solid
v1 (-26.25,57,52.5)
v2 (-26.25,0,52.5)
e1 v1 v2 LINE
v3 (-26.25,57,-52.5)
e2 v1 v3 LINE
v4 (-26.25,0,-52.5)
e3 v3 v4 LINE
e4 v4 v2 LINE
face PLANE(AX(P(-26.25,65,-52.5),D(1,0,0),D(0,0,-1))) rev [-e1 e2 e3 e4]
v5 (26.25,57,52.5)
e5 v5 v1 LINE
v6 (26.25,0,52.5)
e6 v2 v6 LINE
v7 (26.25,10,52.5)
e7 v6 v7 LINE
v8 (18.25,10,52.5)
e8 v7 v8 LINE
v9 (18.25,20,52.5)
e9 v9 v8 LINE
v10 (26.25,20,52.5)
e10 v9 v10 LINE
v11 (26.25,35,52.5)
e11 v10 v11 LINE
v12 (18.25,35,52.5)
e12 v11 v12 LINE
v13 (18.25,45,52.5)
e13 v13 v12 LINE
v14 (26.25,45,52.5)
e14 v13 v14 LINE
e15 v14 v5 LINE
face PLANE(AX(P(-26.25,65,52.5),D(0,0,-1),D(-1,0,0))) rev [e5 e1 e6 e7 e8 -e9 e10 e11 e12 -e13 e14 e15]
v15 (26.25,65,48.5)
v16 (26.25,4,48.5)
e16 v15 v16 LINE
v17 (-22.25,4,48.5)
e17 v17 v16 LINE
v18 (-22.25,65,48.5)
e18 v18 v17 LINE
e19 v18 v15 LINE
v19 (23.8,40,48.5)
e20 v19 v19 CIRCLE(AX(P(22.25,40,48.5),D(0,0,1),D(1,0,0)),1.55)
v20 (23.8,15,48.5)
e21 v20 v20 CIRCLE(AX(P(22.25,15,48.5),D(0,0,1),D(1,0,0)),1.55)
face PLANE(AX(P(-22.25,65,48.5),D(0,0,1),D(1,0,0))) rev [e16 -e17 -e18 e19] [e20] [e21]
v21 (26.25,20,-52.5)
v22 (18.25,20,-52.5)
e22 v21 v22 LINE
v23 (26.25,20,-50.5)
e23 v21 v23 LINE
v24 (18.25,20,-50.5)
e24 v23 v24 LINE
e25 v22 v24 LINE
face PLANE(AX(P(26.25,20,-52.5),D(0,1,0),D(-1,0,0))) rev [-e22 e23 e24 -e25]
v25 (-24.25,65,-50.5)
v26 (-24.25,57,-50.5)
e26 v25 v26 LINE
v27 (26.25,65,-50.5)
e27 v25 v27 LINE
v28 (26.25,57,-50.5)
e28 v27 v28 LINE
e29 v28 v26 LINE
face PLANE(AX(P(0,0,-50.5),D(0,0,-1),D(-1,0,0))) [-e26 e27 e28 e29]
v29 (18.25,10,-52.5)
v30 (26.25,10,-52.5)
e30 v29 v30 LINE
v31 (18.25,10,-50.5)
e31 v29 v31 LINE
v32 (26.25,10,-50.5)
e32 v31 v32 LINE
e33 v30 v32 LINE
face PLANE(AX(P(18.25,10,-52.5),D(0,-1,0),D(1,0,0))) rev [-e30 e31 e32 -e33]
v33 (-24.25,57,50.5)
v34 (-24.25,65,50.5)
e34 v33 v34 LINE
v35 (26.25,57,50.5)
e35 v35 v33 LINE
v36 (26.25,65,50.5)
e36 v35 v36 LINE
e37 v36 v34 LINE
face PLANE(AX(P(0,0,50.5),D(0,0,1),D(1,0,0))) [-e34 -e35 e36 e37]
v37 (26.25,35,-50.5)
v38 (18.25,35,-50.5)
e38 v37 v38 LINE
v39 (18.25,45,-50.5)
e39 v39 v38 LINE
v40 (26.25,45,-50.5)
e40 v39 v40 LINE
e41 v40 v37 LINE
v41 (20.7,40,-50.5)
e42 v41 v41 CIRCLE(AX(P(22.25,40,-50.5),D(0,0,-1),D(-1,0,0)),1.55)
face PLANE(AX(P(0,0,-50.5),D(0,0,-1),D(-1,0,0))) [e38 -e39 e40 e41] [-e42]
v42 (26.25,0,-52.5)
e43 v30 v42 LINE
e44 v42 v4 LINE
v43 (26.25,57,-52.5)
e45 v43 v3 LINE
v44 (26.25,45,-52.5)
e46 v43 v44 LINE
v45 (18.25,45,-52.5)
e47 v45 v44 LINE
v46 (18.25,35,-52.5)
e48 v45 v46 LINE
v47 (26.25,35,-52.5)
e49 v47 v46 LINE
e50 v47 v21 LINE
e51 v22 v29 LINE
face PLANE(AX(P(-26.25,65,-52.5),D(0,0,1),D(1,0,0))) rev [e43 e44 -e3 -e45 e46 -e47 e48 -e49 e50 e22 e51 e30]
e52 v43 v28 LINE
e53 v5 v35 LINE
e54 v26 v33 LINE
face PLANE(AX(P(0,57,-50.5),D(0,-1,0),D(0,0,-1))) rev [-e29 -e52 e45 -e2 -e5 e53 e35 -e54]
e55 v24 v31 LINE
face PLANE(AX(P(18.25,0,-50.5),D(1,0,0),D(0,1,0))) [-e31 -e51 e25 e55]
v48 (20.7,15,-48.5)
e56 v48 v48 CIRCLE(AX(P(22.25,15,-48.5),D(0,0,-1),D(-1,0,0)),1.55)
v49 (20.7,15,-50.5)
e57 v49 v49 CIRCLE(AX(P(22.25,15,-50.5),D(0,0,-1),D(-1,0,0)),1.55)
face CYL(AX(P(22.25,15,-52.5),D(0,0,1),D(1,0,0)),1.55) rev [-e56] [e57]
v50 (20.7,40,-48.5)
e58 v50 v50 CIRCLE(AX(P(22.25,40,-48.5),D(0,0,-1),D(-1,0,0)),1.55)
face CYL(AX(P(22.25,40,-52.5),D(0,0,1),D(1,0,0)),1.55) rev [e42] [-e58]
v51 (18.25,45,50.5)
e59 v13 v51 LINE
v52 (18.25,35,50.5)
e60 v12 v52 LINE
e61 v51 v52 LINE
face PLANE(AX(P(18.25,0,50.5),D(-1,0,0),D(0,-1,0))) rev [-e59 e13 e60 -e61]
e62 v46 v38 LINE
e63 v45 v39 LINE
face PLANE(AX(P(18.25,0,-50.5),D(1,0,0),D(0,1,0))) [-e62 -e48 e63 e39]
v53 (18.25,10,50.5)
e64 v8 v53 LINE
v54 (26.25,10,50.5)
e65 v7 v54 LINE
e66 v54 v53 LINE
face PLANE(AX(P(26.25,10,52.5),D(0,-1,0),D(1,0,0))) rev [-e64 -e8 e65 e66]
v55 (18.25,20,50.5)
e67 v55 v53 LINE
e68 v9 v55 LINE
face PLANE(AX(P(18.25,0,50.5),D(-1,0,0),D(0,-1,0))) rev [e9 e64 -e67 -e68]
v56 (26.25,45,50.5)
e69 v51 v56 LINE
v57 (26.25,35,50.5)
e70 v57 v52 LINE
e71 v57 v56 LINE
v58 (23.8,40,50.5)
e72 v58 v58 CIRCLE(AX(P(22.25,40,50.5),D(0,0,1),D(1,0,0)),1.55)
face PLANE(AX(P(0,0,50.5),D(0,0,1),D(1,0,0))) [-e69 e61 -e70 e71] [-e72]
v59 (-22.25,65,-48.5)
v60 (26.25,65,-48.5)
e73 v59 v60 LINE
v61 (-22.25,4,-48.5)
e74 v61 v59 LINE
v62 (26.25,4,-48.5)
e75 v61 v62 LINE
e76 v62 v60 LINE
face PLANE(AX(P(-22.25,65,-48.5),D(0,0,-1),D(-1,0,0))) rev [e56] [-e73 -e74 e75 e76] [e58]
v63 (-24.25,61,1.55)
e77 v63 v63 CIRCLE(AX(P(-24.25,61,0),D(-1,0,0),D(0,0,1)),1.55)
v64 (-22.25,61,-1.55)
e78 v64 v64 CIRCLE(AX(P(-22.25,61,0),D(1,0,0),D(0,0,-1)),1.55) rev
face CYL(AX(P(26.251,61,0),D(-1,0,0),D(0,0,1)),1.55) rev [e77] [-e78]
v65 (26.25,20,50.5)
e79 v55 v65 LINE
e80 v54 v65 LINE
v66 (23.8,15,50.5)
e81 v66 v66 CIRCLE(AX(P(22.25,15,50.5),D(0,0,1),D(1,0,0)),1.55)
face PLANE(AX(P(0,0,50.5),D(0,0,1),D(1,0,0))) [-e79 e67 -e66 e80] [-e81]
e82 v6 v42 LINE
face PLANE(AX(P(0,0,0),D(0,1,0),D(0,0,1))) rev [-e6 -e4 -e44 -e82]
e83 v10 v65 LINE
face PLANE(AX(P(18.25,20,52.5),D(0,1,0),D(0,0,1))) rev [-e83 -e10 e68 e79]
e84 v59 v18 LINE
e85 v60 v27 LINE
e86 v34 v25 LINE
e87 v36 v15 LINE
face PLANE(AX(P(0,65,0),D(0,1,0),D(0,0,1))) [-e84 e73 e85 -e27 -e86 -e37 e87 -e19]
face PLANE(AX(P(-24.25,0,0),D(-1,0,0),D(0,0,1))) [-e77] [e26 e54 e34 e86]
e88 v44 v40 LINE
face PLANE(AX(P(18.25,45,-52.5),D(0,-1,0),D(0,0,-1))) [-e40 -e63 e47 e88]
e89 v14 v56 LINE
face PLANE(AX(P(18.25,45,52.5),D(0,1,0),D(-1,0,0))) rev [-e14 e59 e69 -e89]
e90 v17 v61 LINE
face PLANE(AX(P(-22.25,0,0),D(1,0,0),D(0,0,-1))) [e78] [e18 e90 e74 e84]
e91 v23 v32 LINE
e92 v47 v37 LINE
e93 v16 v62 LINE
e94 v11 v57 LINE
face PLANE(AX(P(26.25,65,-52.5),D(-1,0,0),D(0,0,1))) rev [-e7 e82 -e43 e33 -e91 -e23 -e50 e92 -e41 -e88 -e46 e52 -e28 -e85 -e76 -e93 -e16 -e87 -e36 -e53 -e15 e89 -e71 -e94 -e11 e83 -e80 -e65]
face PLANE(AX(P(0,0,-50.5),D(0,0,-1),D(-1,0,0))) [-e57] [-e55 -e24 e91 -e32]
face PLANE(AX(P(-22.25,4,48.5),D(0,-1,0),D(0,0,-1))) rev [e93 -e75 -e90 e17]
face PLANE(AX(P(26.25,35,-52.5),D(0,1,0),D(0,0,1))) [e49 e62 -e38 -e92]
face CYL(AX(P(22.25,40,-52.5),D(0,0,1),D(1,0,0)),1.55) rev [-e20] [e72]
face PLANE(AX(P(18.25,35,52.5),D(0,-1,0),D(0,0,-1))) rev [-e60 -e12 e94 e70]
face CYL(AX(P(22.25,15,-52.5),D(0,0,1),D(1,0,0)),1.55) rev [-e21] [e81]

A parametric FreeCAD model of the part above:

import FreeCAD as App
import Part
import Sketcher
Q = App.Units.Quantity

doc = App.newDocument("Part")
params = doc.addObject("Spreadsheet::Sheet", "Params")
for row, (alias, value) in enumerate([
    ("sketch1_height", "105 mm"),
    ("sketch1_width", "52.5 mm"),
    ("pad1_length", "65 mm"),
    ("sketch2_width", "61 mm"),
    ("sketch2_height", "97 mm"),
    ("pocket1_length", "48.5 mm"),
    ("sketch3_width", "8 mm"),
    ("sketch3_height", "57 mm"),
    ("sketch3_width2", "44.5 mm"),
    ("pocket2_length", "2 mm"),
    ("sketch4_width", "8 mm"),
    ("sketch4_height", "57 mm"),
    ("sketch4_width2", "52.5 mm"),
    ("pocket3_length", "2 mm"),
    ("sketch5_width", "8 mm"),
    ("sketch5_height", "101 mm"),
    ("pocket4_length", "2 mm"),
    ("sketch6_diameter", "3.1 mm"),
    ("sketch7_diameter", "3.1 mm"),
    ("sketch8_width", "8 mm"),
    ("sketch8_height", "12 mm"),
    ("sketch8_height2", "10 mm"),
    ("sketch8_height3", "15 mm"),
    ("pad2_length", "2 mm"),
    ("sketch9_width", "8 mm"),
    ("sketch9_height", "12 mm"),
    ("sketch9_height2", "15 mm"),
    ("sketch9_height3", "10 mm"),
    ("pad3_length", "2 mm"),
], start=1):
    params.set(f"A{row}", alias)
    params.set(f"B{row}", "=" + value)
    params.setAlias(f"B{row}", alias)

body = doc.addObject("PartDesign::Body", "Body")

# Sketch on XZ plane
sketch1 = body.newObject("Sketcher::SketchObject", "Sketch")
sketch1.AttachmentSupport = (doc.getObject("XZ_Plane"), [""])
sketch1.MapMode = "FlatFace"
sketch1.addGeometry([
    Part.LineSegment(App.Vector(-26, -52, 0), App.Vector(-26, 52, 0)),
    Part.LineSegment(App.Vector(-26, 52, 0), App.Vector(26, 52, 0)),
    Part.LineSegment(App.Vector(26, 52, 0), App.Vector(26, -52, 0)),
    Part.LineSegment(App.Vector(26, -52, 0), App.Vector(-26, -52, 0)),
], False)
sketch1.addConstraint([
    Sketcher.Constraint("Coincident", 0, 2, 1, 1),
    Sketcher.Constraint("Coincident", 1, 2, 2, 1),
    Sketcher.Constraint("Coincident", 2, 2, 3, 1),
    Sketcher.Constraint("Coincident", 3, 2, 0, 1),
    Sketcher.Constraint("Vertical", 0),
    Sketcher.Constraint("Horizontal", 1),
    Sketcher.Constraint("Vertical", 2),
    Sketcher.Constraint("Horizontal", 3),
    Sketcher.Constraint("Symmetric", 0, 2, 2, 2, -1, 1),
    Sketcher.Constraint("DistanceY", 0, 1, 0, 2, Q("105 mm")),
    Sketcher.Constraint("DistanceX", 1, 1, 1, 2, Q("52.5 mm")),
])
sketch1.setExpression("Constraints[9]", "Params.sketch1_height")
sketch1.setExpression("Constraints[10]", "Params.sketch1_width")
pad1 = body.newObject("PartDesign::Pad", "Pad")
pad1.Profile = sketch1
pad1.setExpression("Length", "Params.pad1_length")
pad1.Reversed = True

# Sketch on YZ plane
sketch2 = body.newObject("Sketcher::SketchObject", "Sketch001")
sketch2.AttachmentSupport = (doc.getObject("YZ_Plane"), [""])
sketch2.MapMode = "FlatFace"
sketch2.AttachmentOffset = App.Placement(App.Vector(0, 0, 26.25), App.Rotation())
sketch2.addGeometry([
    Part.LineSegment(App.Vector(65, 48, 0), App.Vector(4, 48, 0)),
    Part.LineSegment(App.Vector(4, 48, 0), App.Vector(4, -48, 0)),
    Part.LineSegment(App.Vector(4, -48, 0), App.Vector(65, -48, 0)),
    Part.LineSegment(App.Vector(65, -48, 0), App.Vector(65, 48, 0)),
], False)
sketch2.addConstraint([
    Sketcher.Constraint("Coincident", 0, 2, 1, 1),
    Sketcher.Constraint("Coincident", 1, 2, 2, 1),
    Sketcher.Constraint("Coincident", 2, 2, 3, 1),
    Sketcher.Constraint("Coincident", 3, 2, 0, 1),
    Sketcher.Constraint("Horizontal", 0),
    Sketcher.Constraint("Vertical", 1),
    Sketcher.Constraint("Horizontal", 2),
    Sketcher.Constraint("Vertical", 3),
    Sketcher.Constraint("DistanceX", 0, 2, 0, 1, Q("61 mm")),
    Sketcher.Constraint("DistanceY", 1, 2, 1, 1, Q("97 mm")),
    Sketcher.Constraint("DistanceX", -1, 1, 0, 2, Q("4 mm")),
    Sketcher.Constraint("DistanceY", -1, 1, 0, 2, Q("48.5 mm")),
])
sketch2.setExpression("Constraints[8]", "Params.sketch2_width")
sketch2.setExpression("Constraints[9]", "Params.sketch2_height")
pocket1 = body.newObject("PartDesign::Pocket", "Pocket")
pocket1.Profile = sketch2
pocket1.setExpression("Length", "Params.pocket1_length")

# Sketch on XY plane
sketch3 = body.newObject("Sketcher::SketchObject", "Sketch002")
sketch3.AttachmentSupport = (doc.getObject("XY_Plane"), [""])
sketch3.MapMode = "FlatFace"
sketch3.AttachmentOffset = App.Placement(App.Vector(0, 0, -52.5), App.Rotation())
sketch3.addGeometry([
    Part.LineSegment(App.Vector(26, 0, 0), App.Vector(18, 0, 0)),  # 0
    Part.LineSegment(App.Vector(18, 0, 0), App.Vector(18, 57, 0)),  # 1
    Part.LineSegment(App.Vector(18, 57, 0), App.Vector(-26, 57, 0)),  # 2
    Part.LineSegment(App.Vector(-26, 57, 0), App.Vector(-26, 65, 0)),  # 3
    Part.LineSegment(App.Vector(-26, 65, 0), App.Vector(26, 65, 0)),  # 4
    Part.LineSegment(App.Vector(26, 65, 0), App.Vector(26, 0, 0)),  # 5
], False)
sketch3.addConstraint([
    Sketcher.Constraint("Coincident", 0, 2, 1, 1),
    Sketcher.Constraint("Coincident", 1, 2, 2, 1),
    Sketcher.Constraint("Coincident", 2, 2, 3, 1),
    Sketcher.Constraint("Coincident", 3, 2, 4, 1),
    Sketcher.Constraint("Coincident", 4, 2, 5, 1),
    Sketcher.Constraint("Coincident", 5, 2, 0, 1),
    Sketcher.Constraint("Horizontal", 0),
    Sketcher.Constraint("Vertical", 1),
    Sketcher.Constraint("Horizontal", 2),
    Sketcher.Constraint("Vertical", 3),
    Sketcher.Constraint("Horizontal", 4),
    Sketcher.Constraint("Vertical", 5),
    Sketcher.Constraint("PointOnObject", 0, 2, -1),
    Sketcher.Constraint("Equal", 0, 3),
    Sketcher.Constraint("DistanceX", 0, 2, 0, 1, Q("8 mm")),
    Sketcher.Constraint("DistanceY", 1, 1, 1, 2, Q("57 mm")),
    Sketcher.Constraint("DistanceX", 2, 2, 2, 1, Q("44.5 mm")),
    Sketcher.Constraint("DistanceX", -1, 1, 0, 2, Q("18.25 mm")),
])
sketch3.setExpression("Constraints[14]", "Params.sketch3_width")
sketch3.setExpression("Constraints[15]", "Params.sketch3_height")
sketch3.setExpression("Constraints[16]", "Params.sketch3_width2")
pocket2 = body.newObject("PartDesign::Pocket", "Pocket001")
pocket2.Profile = sketch3
pocket2.setExpression("Length", "Params.pocket2_length")
pocket2.Reversed = True

# Sketch on XY plane
sketch4 = body.newObject("Sketcher::SketchObject", "Sketch003")
sketch4.AttachmentSupport = (doc.getObject("XY_Plane"), [""])
sketch4.MapMode = "FlatFace"
sketch4.AttachmentOffset = App.Placement(App.Vector(0, 0, 52.5), App.Rotation())
sketch4.addGeometry([
    Part.LineSegment(App.Vector(26, 65, 0), App.Vector(-26, 65, 0)),  # 0
    Part.LineSegment(App.Vector(-26, 65, 0), App.Vector(-26, 57, 0)),  # 1
    Part.LineSegment(App.Vector(-26, 57, 0), App.Vector(18, 57, 0)),  # 2
    Part.LineSegment(App.Vector(18, 57, 0), App.Vector(18, 0, 0)),  # 3
    Part.LineSegment(App.Vector(18, 0, 0), App.Vector(26, 0, 0)),  # 4
    Part.LineSegment(App.Vector(26, 0, 0), App.Vector(26, 65, 0)),  # 5
], False)
sketch4.addConstraint([
    Sketcher.Constraint("Coincident", 0, 2, 1, 1),
    Sketcher.Constraint("Coincident", 1, 2, 2, 1),
    Sketcher.Constraint("Coincident", 2, 2, 3, 1),
    Sketcher.Constraint("Coincident", 3, 2, 4, 1),
    Sketcher.Constraint("Coincident", 4, 2, 5, 1),
    Sketcher.Constraint("Coincident", 5, 2, 0, 1),
    Sketcher.Constraint("Horizontal", 0),
    Sketcher.Constraint("Vertical", 1),
    Sketcher.Constraint("Horizontal", 2),
    Sketcher.Constraint("Vertical", 3),
    Sketcher.Constraint("Horizontal", 4),
    Sketcher.Constraint("Vertical", 5),
    Sketcher.Constraint("PointOnObject", 3, 2, -1),
    Sketcher.Constraint("Equal", 4, 1),
    Sketcher.Constraint("DistanceX", 4, 1, 4, 2, Q("8 mm")),
    Sketcher.Constraint("DistanceY", 3, 2, 3, 1, Q("57 mm")),
    Sketcher.Constraint("DistanceX", 0, 2, 0, 1, Q("52.5 mm")),
    Sketcher.Constraint("DistanceX", 0, 2, -1, 1, Q("26.25 mm")),
])
sketch4.setExpression("Constraints[14]", "Params.sketch4_width")
sketch4.setExpression("Constraints[15]", "Params.sketch4_height")
sketch4.setExpression("Constraints[16]", "Params.sketch4_width2")
pocket3 = body.newObject("PartDesign::Pocket", "Pocket002")
pocket3.Profile = sketch4
pocket3.setExpression("Length", "Params.pocket3_length")

# Sketch on YZ plane
sketch5 = body.newObject("Sketcher::SketchObject", "Sketch004")
sketch5.AttachmentSupport = (doc.getObject("YZ_Plane"), [""])
sketch5.MapMode = "FlatFace"
sketch5.AttachmentOffset = App.Placement(App.Vector(0, 0, -26.25), App.Rotation())
sketch5.addGeometry([
    Part.LineSegment(App.Vector(65, -50, 0), App.Vector(57, -50, 0)),
    Part.LineSegment(App.Vector(57, -50, 0), App.Vector(57, 50, 0)),
    Part.LineSegment(App.Vector(57, 50, 0), App.Vector(65, 50, 0)),
    Part.LineSegment(App.Vector(65, 50, 0), App.Vector(65, -50, 0)),
], False)
sketch5.addConstraint([
    Sketcher.Constraint("Coincident", 0, 2, 1, 1),
    Sketcher.Constraint("Coincident", 1, 2, 2, 1),
    Sketcher.Constraint("Coincident", 2, 2, 3, 1),
    Sketcher.Constraint("Coincident", 3, 2, 0, 1),
    Sketcher.Constraint("Horizontal", 0),
    Sketcher.Constraint("Vertical", 1),
    Sketcher.Constraint("Horizontal", 2),
    Sketcher.Constraint("Vertical", 3),
    Sketcher.Constraint("DistanceX", 0, 2, 0, 1, Q("8 mm")),
    Sketcher.Constraint("DistanceY", 1, 1, 1, 2, Q("101 mm")),
    Sketcher.Constraint("DistanceX", -1, 1, 0, 2, Q("57 mm")),
    Sketcher.Constraint("DistanceY", 0, 2, -1, 1, Q("50.5 mm")),
])
sketch5.setExpression("Constraints[8]", "Params.sketch5_width")
sketch5.setExpression("Constraints[9]", "Params.sketch5_height")
pocket4 = body.newObject("PartDesign::Pocket", "Pocket003")
pocket4.Profile = sketch5
pocket4.setExpression("Length", "Params.pocket4_length")
pocket4.Reversed = True

# Sketch on YZ plane
sketch6 = body.newObject("Sketcher::SketchObject", "Sketch005")
sketch6.AttachmentSupport = (doc.getObject("YZ_Plane"), [""])
sketch6.MapMode = "FlatFace"
sketch6.AttachmentOffset = App.Placement(App.Vector(0, 0, -24.25), App.Rotation())
sketch6.addGeometry(Part.Circle(App.Vector(61, 0, 0), App.Vector(0, 0, 1), 1.6), False)
sketch6.addConstraint([
    Sketcher.Constraint("PointOnObject", 0, 3, -1),
    Sketcher.Constraint("Diameter", 0, Q("3.1 mm")),
    Sketcher.Constraint("DistanceX", -1, 1, 0, 3, Q("61 mm")),
])
sketch6.setExpression("Constraints[1]", "Params.sketch6_diameter")
pocket5 = body.newObject("PartDesign::Pocket", "Pocket004")
pocket5.Profile = sketch6
pocket5.Type = "UpToFirst"
pocket5.Reversed = True

# Sketch on XY plane
sketch7 = body.newObject("Sketcher::SketchObject", "Sketch006")
sketch7.AttachmentSupport = (doc.getObject("XY_Plane"), [""])
sketch7.MapMode = "FlatFace"
sketch7.AttachmentOffset = App.Placement(App.Vector(0, 0, 50.5), App.Rotation())
sketch7.addGeometry([
    Part.Circle(App.Vector(22.2, 15, 0), App.Vector(0, 0, 1), 1.6),
    Part.Circle(App.Vector(22.2, 40, 0), App.Vector(0, 0, 1), 1.6),
], False)
sketch7.addConstraint([
    Sketcher.Constraint("Equal", 0, 1),
    Sketcher.Constraint("Vertical", 0, 3, 1, 3),
    Sketcher.Constraint("Diameter", 0, Q("3.1 mm")),
    Sketcher.Constraint("DistanceY", -1, 1, 0, 3, Q("15 mm")),
    Sketcher.Constraint("DistanceY", -1, 1, 1, 3, Q("40 mm")),
    Sketcher.Constraint("DistanceX", -1, 1, 0, 3, Q("22.25 mm")),
])
sketch7.setExpression("Constraints[2]", "Params.sketch7_diameter")
pocket6 = body.newObject("PartDesign::Pocket", "Pocket005")
pocket6.Profile = sketch7
pocket6.Type = "ThroughAll"

# Sketch on XY plane
sketch8 = body.newObject("Sketcher::SketchObject", "Sketch007")
sketch8.AttachmentSupport = (doc.getObject("XY_Plane"), [""])
sketch8.MapMode = "FlatFace"
sketch8.AttachmentOffset = App.Placement(App.Vector(0, 0, 50.5), App.Rotation())
sketch8.addGeometry([
    Part.LineSegment(App.Vector(18, 57, 0), App.Vector(18, 45, 0)),  # 0
    Part.LineSegment(App.Vector(18, 45, 0), App.Vector(26, 45, 0)),  # 1
    Part.LineSegment(App.Vector(26, 45, 0), App.Vector(26, 57, 0)),  # 2
    Part.LineSegment(App.Vector(26, 57, 0), App.Vector(18, 57, 0)),  # 3
    Part.LineSegment(App.Vector(18, 10, 0), App.Vector(18, 0, 0)),  # 4
    Part.LineSegment(App.Vector(18, 0, 0), App.Vector(26, 0, 0)),  # 5
    Part.LineSegment(App.Vector(26, 0, 0), App.Vector(26, 10, 0)),  # 6
    Part.LineSegment(App.Vector(26, 10, 0), App.Vector(18, 10, 0)),  # 7
    Part.LineSegment(App.Vector(18, 35, 0), App.Vector(18, 20, 0)),  # 8
    Part.LineSegment(App.Vector(18, 20, 0), App.Vector(26, 20, 0)),  # 9
    Part.LineSegment(App.Vector(26, 20, 0), App.Vector(26, 35, 0)),  # 10
    Part.LineSegment(App.Vector(26, 35, 0), App.Vector(18, 35, 0)),  # 11
], False)
sketch8.addConstraint([
    Sketcher.Constraint("Coincident", 0, 2, 1, 1),
    Sketcher.Constraint("Coincident", 1, 2, 2, 1),
    Sketcher.Constraint("Coincident", 2, 2, 3, 1),
    Sketcher.Constraint("Coincident", 3, 2, 0, 1),
    Sketcher.Constraint("Coincident", 4, 2, 5, 1),
    Sketcher.Constraint("Coincident", 5, 2, 6, 1),
    Sketcher.Constraint("Coincident", 6, 2, 7, 1),
    Sketcher.Constraint("Coincident", 7, 2, 4, 1),
    Sketcher.Constraint("Coincident", 8, 2, 9, 1),
    Sketcher.Constraint("Coincident", 9, 2, 10, 1),
    Sketcher.Constraint("Coincident", 10, 2, 11, 1),
    Sketcher.Constraint("Coincident", 11, 2, 8, 1),
    Sketcher.Constraint("Vertical", 0),
    Sketcher.Constraint("Horizontal", 1),
    Sketcher.Constraint("Vertical", 2),
    Sketcher.Constraint("Horizontal", 3),
    Sketcher.Constraint("Vertical", 4),
    Sketcher.Constraint("Horizontal", 5),
    Sketcher.Constraint("Vertical", 6),
    Sketcher.Constraint("Horizontal", 7),
    Sketcher.Constraint("Vertical", 8),
    Sketcher.Constraint("Horizontal", 9),
    Sketcher.Constraint("Vertical", 10),
    Sketcher.Constraint("Horizontal", 11),
    Sketcher.Constraint("PointOnObject", 4, 2, -1),
    Sketcher.Constraint("Vertical", 3, 2, 4, 2),
    Sketcher.Constraint("Vertical", 2, 2, 5, 2),
    Sketcher.Constraint("Vertical", 7, 2, 8, 2),
    Sketcher.Constraint("Vertical", 6, 2, 9, 2),
    Sketcher.Constraint("DistanceX", 1, 1, 1, 2, Q("8 mm")),
    Sketcher.Constraint("DistanceY", 0, 2, 0, 1, Q("12 mm")),
    Sketcher.Constraint("DistanceY", 4, 2, 4, 1, Q("10 mm")),
    Sketcher.Constraint("DistanceY", 8, 2, 8, 1, Q("15 mm")),
    Sketcher.Constraint("DistanceY", -1, 1, 0, 2, Q("45 mm")),
    Sketcher.Constraint("DistanceY", -1, 1, 8, 2, Q("20 mm")),
    Sketcher.Constraint("DistanceX", -1, 1, 0, 2, Q("18.25 mm")),
])
sketch8.setExpression("Constraints[29]", "Params.sketch8_width")
sketch8.setExpression("Constraints[30]", "Params.sketch8_height")
sketch8.setExpression("Constraints[31]", "Params.sketch8_height2")
sketch8.setExpression("Constraints[32]", "Params.sketch8_height3")
pad2 = body.newObject("PartDesign::Pad", "Pad001")
pad2.Profile = sketch8
pad2.setExpression("Length", "Params.pad2_length")

# Sketch on XY plane
sketch9 = body.newObject("Sketcher::SketchObject", "Sketch008")
sketch9.AttachmentSupport = (doc.getObject("XY_Plane"), [""])
sketch9.MapMode = "FlatFace"
sketch9.AttachmentOffset = App.Placement(App.Vector(0, 0, -50.5), App.Rotation())
sketch9.addGeometry([
    Part.LineSegment(App.Vector(26, 57, 0), App.Vector(26, 45, 0)),  # 0
    Part.LineSegment(App.Vector(26, 45, 0), App.Vector(18, 45, 0)),  # 1
    Part.LineSegment(App.Vector(18, 45, 0), App.Vector(18, 57, 0)),  # 2
    Part.LineSegment(App.Vector(18, 57, 0), App.Vector(26, 57, 0)),  # 3
    Part.LineSegment(App.Vector(26, 35, 0), App.Vector(26, 20, 0)),  # 4
    Part.LineSegment(App.Vector(26, 20, 0), App.Vector(18, 20, 0)),  # 5
    Part.LineSegment(App.Vector(18, 20, 0), App.Vector(18, 35, 0)),  # 6
    Part.LineSegment(App.Vector(18, 35, 0), App.Vector(26, 35, 0)),  # 7
    Part.LineSegment(App.Vector(26, 10, 0), App.Vector(26, 0, 0)),  # 8
    Part.LineSegment(App.Vector(26, 0, 0), App.Vector(18, 0, 0)),  # 9
    Part.LineSegment(App.Vector(18, 0, 0), App.Vector(18, 10, 0)),  # 10
    Part.LineSegment(App.Vector(18, 10, 0), App.Vector(26, 10, 0)),  # 11
], False)
sketch9.addConstraint([
    Sketcher.Constraint("Coincident", 0, 2, 1, 1),
    Sketcher.Constraint("Coincident", 1, 2, 2, 1),
    Sketcher.Constraint("Coincident", 2, 2, 3, 1),
    Sketcher.Constraint("Coincident", 3, 2, 0, 1),
    Sketcher.Constraint("Coincident", 4, 2, 5, 1),
    Sketcher.Constraint("Coincident", 5, 2, 6, 1),
    Sketcher.Constraint("Coincident", 6, 2, 7, 1),
    Sketcher.Constraint("Coincident", 7, 2, 4, 1),
    Sketcher.Constraint("Coincident", 8, 2, 9, 1),
    Sketcher.Constraint("Coincident", 9, 2, 10, 1),
    Sketcher.Constraint("Coincident", 10, 2, 11, 1),
    Sketcher.Constraint("Coincident", 11, 2, 8, 1),
    Sketcher.Constraint("Vertical", 0),
    Sketcher.Constraint("Horizontal", 1),
    Sketcher.Constraint("Vertical", 2),
    Sketcher.Constraint("Horizontal", 3),
    Sketcher.Constraint("Vertical", 4),
    Sketcher.Constraint("Horizontal", 5),
    Sketcher.Constraint("Vertical", 6),
    Sketcher.Constraint("Horizontal", 7),
    Sketcher.Constraint("Vertical", 8),
    Sketcher.Constraint("Horizontal", 9),
    Sketcher.Constraint("Vertical", 10),
    Sketcher.Constraint("Horizontal", 11),
    Sketcher.Constraint("PointOnObject", 8, 2, -1),
    Sketcher.Constraint("Vertical", 3, 2, 4, 2),
    Sketcher.Constraint("Vertical", 2, 2, 5, 2),
    Sketcher.Constraint("Vertical", 7, 2, 8, 2),
    Sketcher.Constraint("Vertical", 6, 2, 9, 2),
    Sketcher.Constraint("DistanceX", 1, 2, 1, 1, Q("8 mm")),
    Sketcher.Constraint("DistanceY", 0, 2, 0, 1, Q("12 mm")),
    Sketcher.Constraint("DistanceY", 4, 2, 4, 1, Q("15 mm")),
    Sketcher.Constraint("DistanceY", 8, 2, 8, 1, Q("10 mm")),
    Sketcher.Constraint("DistanceY", -1, 1, 0, 2, Q("45 mm")),
    Sketcher.Constraint("DistanceY", -1, 1, 4, 2, Q("20 mm")),
    Sketcher.Constraint("DistanceX", -1, 1, 0, 2, Q("26.25 mm")),
])
sketch9.setExpression("Constraints[29]", "Params.sketch9_width")
sketch9.setExpression("Constraints[30]", "Params.sketch9_height")
sketch9.setExpression("Constraints[31]", "Params.sketch9_height2")
sketch9.setExpression("Constraints[32]", "Params.sketch9_height3")
pad3 = body.newObject("PartDesign::Pad", "Pad002")
pad3.Profile = sketch9
pad3.setExpression("Length", "Params.pad3_length")
pad3.Reversed = True

doc.recompute()
